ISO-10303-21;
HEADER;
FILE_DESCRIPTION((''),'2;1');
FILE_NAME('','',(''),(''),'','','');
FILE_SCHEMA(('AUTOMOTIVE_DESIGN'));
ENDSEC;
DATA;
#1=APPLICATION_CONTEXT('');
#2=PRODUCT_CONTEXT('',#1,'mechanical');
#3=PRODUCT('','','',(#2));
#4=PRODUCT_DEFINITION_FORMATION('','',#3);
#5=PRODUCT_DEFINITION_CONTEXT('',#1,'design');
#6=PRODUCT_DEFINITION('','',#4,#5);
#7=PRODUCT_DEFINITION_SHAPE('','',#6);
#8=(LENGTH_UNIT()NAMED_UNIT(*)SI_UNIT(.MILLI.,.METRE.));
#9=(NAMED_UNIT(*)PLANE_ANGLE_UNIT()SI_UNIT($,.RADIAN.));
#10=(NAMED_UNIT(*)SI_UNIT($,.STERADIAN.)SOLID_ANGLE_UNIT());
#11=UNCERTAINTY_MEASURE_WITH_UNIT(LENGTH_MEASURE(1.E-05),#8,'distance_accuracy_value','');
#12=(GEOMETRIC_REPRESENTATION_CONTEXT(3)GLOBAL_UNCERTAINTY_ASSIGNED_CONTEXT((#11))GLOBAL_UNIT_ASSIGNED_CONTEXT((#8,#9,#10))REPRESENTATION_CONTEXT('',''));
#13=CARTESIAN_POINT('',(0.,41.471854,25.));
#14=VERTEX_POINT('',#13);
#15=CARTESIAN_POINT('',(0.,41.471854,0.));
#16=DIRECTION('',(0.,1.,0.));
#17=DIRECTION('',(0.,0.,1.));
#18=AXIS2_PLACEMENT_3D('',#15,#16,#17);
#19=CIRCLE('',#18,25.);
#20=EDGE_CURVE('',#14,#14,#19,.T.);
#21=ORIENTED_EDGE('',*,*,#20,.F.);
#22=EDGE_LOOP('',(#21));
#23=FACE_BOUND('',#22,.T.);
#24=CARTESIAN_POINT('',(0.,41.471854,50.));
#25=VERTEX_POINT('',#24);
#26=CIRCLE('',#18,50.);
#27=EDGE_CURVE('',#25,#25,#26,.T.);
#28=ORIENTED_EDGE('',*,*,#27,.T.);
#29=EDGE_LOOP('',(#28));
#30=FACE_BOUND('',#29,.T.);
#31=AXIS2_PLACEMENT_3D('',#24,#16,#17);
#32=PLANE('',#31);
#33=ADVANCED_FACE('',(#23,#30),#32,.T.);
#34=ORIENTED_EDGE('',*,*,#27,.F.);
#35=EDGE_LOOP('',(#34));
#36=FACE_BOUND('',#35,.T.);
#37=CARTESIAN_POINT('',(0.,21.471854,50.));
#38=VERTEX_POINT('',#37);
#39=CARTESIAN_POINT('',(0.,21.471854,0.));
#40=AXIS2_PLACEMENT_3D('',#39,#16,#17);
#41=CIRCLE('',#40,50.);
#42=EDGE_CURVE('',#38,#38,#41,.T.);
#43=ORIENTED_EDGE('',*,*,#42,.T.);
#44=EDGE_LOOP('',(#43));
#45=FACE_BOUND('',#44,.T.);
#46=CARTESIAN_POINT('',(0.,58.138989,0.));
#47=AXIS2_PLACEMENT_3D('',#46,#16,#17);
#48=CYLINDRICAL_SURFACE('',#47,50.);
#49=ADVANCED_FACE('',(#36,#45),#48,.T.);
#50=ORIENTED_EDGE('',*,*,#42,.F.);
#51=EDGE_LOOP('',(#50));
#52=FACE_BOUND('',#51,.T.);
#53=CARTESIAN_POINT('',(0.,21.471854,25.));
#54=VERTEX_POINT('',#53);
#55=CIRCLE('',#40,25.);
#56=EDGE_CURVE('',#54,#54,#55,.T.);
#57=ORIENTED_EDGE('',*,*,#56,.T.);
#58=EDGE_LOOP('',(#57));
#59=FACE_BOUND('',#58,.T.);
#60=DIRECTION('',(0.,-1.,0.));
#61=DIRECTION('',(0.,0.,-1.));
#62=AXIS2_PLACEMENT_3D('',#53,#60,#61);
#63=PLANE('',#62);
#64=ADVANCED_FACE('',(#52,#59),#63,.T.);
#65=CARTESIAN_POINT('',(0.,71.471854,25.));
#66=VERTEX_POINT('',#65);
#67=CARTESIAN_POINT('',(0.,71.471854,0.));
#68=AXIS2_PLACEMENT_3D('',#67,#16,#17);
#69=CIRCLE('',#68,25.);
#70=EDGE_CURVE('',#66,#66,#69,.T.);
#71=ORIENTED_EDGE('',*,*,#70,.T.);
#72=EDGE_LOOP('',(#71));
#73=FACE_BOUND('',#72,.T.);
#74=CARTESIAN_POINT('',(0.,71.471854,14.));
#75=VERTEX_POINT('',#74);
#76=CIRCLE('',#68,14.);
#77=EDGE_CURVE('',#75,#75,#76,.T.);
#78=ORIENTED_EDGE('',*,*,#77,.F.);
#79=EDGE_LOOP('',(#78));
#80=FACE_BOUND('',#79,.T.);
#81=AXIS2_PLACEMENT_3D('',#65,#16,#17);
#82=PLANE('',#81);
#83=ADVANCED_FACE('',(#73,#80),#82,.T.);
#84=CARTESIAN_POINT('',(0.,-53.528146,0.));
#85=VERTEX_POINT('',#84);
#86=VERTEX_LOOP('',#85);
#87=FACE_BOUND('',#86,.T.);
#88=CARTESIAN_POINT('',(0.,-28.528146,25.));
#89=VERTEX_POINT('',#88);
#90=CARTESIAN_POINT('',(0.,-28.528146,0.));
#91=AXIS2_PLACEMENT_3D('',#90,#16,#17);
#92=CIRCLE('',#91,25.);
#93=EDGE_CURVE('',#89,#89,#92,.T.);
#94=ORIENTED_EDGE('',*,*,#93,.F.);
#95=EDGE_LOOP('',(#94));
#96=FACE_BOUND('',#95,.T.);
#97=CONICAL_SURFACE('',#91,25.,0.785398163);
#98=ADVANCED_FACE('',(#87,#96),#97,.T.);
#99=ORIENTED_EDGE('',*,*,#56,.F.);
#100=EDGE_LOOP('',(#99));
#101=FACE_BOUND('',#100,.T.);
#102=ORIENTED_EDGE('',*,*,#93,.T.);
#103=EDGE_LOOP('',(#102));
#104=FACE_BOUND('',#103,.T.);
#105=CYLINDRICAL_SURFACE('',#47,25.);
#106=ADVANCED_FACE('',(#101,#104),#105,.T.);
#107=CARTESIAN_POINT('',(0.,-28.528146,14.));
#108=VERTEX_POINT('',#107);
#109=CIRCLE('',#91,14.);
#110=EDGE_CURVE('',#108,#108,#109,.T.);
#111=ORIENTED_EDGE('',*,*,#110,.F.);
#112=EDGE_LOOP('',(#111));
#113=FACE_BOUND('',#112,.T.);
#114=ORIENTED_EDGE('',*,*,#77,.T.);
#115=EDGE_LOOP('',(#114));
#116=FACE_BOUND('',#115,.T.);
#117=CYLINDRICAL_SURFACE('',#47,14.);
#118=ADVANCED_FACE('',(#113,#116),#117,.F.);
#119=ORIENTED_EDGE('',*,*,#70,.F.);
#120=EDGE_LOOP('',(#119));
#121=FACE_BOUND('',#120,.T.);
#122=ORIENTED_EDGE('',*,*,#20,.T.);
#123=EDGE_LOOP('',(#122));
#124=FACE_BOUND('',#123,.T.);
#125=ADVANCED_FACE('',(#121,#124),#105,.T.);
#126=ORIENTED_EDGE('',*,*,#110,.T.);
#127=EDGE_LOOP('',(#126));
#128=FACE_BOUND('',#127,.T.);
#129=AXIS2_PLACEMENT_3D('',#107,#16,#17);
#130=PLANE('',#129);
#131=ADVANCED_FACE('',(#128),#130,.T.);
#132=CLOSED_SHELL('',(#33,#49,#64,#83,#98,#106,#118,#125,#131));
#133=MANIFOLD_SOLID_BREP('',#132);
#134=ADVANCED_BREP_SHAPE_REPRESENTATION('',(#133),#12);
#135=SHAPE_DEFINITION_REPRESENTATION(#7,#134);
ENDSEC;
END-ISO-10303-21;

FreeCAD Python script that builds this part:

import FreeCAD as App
import Part
import Sketcher
from FreeCAD import Vector


def add_polygon(sketch, points):
    """Adds a closed chain of lines whose ends are joined by coincident constraints."""
    first, n = sketch.GeometryCount, len(points)
    for a, b in zip(points, points[1:] + points[:1]):
        sketch.addGeometry(Part.LineSegment(App.Vector(*a, 0), App.Vector(*b, 0)), False)
    for i in range(n):
        sketch.addConstraint(Sketcher.Constraint("Coincident", first + i, 2, first + (i + 1) % n, 1))

doc = App.newDocument("Part")
body = doc.addObject("PartDesign::Body", "Body")

sketch1 = body.newObject("Sketcher::SketchObject", "Sketch")
sketch1.AttachmentSupport = (doc.getObject("YZ_Plane"), [""])
sketch1.MapMode = "FlatFace"
add_polygon(sketch1, [(21, 25), (-29, 25), (-54, 0), (-29, 0), (-29, 14), (71, 14), (71, 25), (41, 25), (41, 50), (21, 50)])
sketch1.addConstraint([
    Sketcher.Constraint("Horizontal", 0),
    Sketcher.Constraint("Horizontal", 2),
    Sketcher.Constraint("Vertical", 3),
    Sketcher.Constraint("Horizontal", 4),
    Sketcher.Constraint("Vertical", 5),
    Sketcher.Constraint("Horizontal", 6),
    Sketcher.Constraint("Vertical", 7),
    Sketcher.Constraint("Horizontal", 8),
    Sketcher.Constraint("Vertical", 9),
    Sketcher.Constraint("PointOnObject", 1, 2, -1),
    Sketcher.Constraint("Horizontal", 0, 2, 5, 2),
    Sketcher.Constraint("Vertical", 0, 2, 2, 2),
    Sketcher.Constraint("Equal", 2, 7),
    Sketcher.Constraint("DistanceX", 0, 2, 0, 1, 50.0),
    Sketcher.Constraint("DistanceX", 2, 1, 2, 2, 25.0),
    Sketcher.Constraint("DistanceX", 4, 1, 4, 2, 100.0),
    Sketcher.Constraint("DistanceX", 6, 2, 6, 1, 30.0),
    Sketcher.Constraint("DistanceY", 3, 1, 3, 2, 14.0),
    Sketcher.Constraint("DistanceY", 5, 1, 5, 2, 11.0),
    Sketcher.Constraint("DistanceX", 0, 2, -1, 1, 28.528146),
])
revolution = body.newObject("PartDesign::Revolution", "Revolution")
revolution.Profile = sketch1
revolution.ReferenceAxis = (sketch1, ["H_Axis"])
revolution.Angle = 360

doc.recompute()
